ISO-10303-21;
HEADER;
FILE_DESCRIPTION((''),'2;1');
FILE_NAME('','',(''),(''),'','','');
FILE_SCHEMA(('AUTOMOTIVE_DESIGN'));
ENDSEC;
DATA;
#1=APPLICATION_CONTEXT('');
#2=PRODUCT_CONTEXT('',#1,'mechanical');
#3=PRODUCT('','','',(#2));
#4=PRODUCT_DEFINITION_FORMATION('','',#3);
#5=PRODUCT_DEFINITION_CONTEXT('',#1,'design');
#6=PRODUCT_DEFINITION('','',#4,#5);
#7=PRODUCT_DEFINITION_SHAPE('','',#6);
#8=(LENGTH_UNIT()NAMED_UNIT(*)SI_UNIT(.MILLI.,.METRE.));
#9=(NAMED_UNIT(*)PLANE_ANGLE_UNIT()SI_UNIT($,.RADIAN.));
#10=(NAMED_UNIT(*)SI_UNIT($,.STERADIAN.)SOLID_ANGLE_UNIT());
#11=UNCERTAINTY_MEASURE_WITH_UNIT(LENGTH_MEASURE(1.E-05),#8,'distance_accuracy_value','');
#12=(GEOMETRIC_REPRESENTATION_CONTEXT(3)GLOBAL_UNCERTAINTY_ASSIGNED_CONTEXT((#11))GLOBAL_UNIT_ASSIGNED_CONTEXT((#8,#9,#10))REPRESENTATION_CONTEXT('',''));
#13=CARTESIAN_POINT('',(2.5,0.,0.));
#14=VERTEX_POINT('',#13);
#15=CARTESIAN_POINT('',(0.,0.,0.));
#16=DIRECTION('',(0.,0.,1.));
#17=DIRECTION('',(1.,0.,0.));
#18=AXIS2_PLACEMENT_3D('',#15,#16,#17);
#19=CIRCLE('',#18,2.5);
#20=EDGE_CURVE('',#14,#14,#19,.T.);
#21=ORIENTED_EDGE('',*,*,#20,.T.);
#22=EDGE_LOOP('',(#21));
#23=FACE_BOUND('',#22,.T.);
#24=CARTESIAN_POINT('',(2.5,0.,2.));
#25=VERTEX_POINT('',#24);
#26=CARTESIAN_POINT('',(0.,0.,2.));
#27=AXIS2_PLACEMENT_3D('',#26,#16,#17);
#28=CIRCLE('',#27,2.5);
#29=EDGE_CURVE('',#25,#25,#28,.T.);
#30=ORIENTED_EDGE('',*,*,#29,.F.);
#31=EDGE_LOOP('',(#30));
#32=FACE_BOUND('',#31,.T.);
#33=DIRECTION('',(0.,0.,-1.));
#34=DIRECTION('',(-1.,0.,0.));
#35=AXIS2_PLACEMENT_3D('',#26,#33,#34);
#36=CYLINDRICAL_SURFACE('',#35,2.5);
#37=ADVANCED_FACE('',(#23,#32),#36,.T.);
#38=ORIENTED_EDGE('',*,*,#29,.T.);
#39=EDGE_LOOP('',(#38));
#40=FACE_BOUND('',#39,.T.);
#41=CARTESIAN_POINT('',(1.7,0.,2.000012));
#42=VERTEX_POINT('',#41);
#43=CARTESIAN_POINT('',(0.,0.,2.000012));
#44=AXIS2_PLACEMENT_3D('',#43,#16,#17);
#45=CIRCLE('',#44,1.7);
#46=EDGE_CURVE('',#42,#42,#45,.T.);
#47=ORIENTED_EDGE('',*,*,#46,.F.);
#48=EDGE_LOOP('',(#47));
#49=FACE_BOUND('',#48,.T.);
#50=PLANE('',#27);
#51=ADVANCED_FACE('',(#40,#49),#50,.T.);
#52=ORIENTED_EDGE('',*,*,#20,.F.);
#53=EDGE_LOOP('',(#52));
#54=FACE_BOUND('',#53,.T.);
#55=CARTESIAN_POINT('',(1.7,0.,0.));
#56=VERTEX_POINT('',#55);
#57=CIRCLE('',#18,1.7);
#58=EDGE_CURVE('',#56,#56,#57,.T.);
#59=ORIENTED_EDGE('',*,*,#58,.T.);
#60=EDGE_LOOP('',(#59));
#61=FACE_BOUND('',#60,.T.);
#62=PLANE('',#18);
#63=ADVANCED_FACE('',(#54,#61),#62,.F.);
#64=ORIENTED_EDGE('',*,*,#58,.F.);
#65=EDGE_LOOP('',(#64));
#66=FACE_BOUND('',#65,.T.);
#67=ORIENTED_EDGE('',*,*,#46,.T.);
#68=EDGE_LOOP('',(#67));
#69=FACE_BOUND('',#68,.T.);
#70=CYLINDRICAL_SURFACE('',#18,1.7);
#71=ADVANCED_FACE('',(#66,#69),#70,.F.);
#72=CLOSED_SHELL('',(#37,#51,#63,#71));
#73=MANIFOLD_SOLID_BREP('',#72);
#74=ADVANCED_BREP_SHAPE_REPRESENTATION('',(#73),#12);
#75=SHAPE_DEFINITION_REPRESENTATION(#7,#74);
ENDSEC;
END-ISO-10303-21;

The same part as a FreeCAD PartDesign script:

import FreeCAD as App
import Part
import Sketcher

doc = App.newDocument("Part")
params = doc.addObject("Spreadsheet::Sheet", "Params")
for row, (alias, value) in enumerate([
    ("sketch1_diameter", "5 mm"),
    ("pad1_length", "2 mm"),
    ("sketch2_diameter", "3.4 mm"),
], start=1):
    params.set(f"A{row}", alias)
    params.set(f"B{row}", "=" + value)
    params.setAlias(f"B{row}", alias)

body = doc.addObject("PartDesign::Body", "Body")

sketch1 = body.newObject("Sketcher::SketchObject", "Sketch")
sketch1.AttachmentSupport = (doc.getObject("XY_Plane"), [""])
sketch1.MapMode = "FlatFace"
sketch1.addGeometry(Part.Circle(App.Vector(0, 0, 0), App.Vector(0, 0, 1), 2.5), False)
sketch1.addConstraint([
    Sketcher.Constraint("Coincident", 0, 3, -1, 1),
    Sketcher.Constraint("Diameter", 0, 5.0),
])
sketch1.setExpression("Constraints[1]", "Params.sketch1_diameter")
pad1 = body.newObject("PartDesign::Pad", "Pad")
pad1.Profile = sketch1
pad1.setExpression("Length", "Params.pad1_length")

sketch2 = body.newObject("Sketcher::SketchObject", "Sketch001")
sketch2.AttachmentSupport = (doc.getObject("XY_Plane"), [""])
sketch2.MapMode = "FlatFace"
sketch2.AttachmentOffset = App.Placement(App.Vector(0, 0, 2), App.Rotation())
sketch2.addGeometry(Part.Circle(App.Vector(0, 0, 0), App.Vector(0, 0, 1), 1.7), False)
sketch2.addConstraint([
    Sketcher.Constraint("Coincident", 0, 3, -1, 1),
    Sketcher.Constraint("Diameter", 0, 3.4),
])
sketch2.setExpression("Constraints[1]", "Params.sketch2_diameter")
pocket1 = body.newObject("PartDesign::Pocket", "Pocket")
pocket1.Profile = sketch2
pocket1.Type = "ThroughAll"
pocket1.Midplane = True

doc.recompute()
